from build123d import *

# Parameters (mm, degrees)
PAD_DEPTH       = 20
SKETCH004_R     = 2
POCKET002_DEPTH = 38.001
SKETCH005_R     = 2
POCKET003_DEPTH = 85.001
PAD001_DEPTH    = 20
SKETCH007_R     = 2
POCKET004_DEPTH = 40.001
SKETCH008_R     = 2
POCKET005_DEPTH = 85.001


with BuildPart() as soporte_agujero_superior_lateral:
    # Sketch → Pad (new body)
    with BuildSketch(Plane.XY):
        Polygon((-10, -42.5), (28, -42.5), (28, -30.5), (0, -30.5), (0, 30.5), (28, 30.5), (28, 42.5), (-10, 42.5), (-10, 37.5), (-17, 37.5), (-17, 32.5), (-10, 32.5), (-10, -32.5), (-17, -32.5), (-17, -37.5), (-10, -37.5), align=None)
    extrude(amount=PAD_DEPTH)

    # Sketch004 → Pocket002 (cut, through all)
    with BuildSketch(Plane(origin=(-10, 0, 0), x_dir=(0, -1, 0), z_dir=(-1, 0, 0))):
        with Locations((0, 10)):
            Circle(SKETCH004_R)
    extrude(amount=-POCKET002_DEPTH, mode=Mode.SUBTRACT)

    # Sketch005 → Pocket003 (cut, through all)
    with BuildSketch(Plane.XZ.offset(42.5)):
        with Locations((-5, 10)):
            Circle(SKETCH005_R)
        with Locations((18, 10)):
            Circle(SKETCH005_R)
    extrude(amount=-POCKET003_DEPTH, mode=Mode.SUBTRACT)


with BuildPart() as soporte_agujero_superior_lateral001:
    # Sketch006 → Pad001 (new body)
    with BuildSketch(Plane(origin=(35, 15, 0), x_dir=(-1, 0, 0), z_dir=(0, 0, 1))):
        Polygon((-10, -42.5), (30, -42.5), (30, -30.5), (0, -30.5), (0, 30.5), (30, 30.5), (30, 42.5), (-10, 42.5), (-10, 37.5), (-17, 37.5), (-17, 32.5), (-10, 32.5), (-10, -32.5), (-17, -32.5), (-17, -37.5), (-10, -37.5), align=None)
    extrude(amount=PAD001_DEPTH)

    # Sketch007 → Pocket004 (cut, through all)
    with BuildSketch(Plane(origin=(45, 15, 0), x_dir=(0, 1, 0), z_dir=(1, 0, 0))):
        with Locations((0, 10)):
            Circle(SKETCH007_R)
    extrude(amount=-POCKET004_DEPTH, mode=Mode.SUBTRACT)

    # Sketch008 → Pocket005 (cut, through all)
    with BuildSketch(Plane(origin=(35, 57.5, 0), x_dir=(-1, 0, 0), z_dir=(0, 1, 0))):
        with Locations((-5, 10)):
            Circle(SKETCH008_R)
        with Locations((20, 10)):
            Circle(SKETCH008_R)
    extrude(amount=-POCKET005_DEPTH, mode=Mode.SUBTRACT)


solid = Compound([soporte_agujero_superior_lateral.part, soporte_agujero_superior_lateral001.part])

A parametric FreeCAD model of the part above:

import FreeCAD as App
import Part
import Sketcher


def add_polygon(sketch, points):
    """Adds a closed chain of lines whose ends are joined by coincident constraints."""
    first, n = sketch.GeometryCount, len(points)
    for a, b in zip(points, points[1:] + points[:1]):
        sketch.addGeometry(Part.LineSegment(App.Vector(*a, 0), App.Vector(*b, 0)), False)
    for i in range(n):
        sketch.addConstraint(Sketcher.Constraint("Coincident", first + i, 2, first + (i + 1) % n, 1))

doc = App.newDocument("Part")
params = doc.addObject("Spreadsheet::Sheet", "Params")
for row, (alias, value) in enumerate([
    ("sketch1_width", "38 mm"),
    ("sketch1_width2", "28 mm"),
    ("sketch1_width3", "7 mm"),
    ("sketch1_height", "12 mm"),
    ("sketch1_height2", "61 mm"),
    ("pad1_length", "20 mm"),
    ("sketch2_diameter", "4 mm"),
    ("sketch3_diameter", "4 mm"),
    ("sketch4_width", "40 mm"),
    ("sketch4_width2", "30 mm"),
    ("sketch4_width3", "7 mm"),
    ("sketch4_height", "12 mm"),
    ("sketch4_height2", "61 mm"),
    ("pad2_length", "20 mm"),
    ("sketch5_diameter", "4 mm"),
    ("sketch6_diameter", "4 mm"),
], start=1):
    params.set(f"A{row}", alias)
    params.set(f"B{row}", "=" + value)
    params.setAlias(f"B{row}", alias)

body = doc.addObject("PartDesign::Body", "Body")

# Sketch on XY plane
sketch1 = body.newObject("Sketcher::SketchObject", "Sketch")
sketch1.AttachmentSupport = (doc.getObject("XY_Plane"), [""])
sketch1.MapMode = "FlatFace"
add_polygon(sketch1, [(-10, -42.5), (28, -42.5), (28, -30.5), (0, -30.5), (0, 30.5), (28, 30.5), (28, 42.5), (-10, 42.5), (-10, 37.5), (-17, 37.5), (-17, 32.5), (-10, 32.5), (-10, -32.5), (-17, -32.5), (-17, -37.5), (-10, -37.5)])  # lines 0-15
sketch1.addConstraint([
    Sketcher.Constraint("Horizontal", 0),
    Sketcher.Constraint("Vertical", 1),
    Sketcher.Constraint("Horizontal", 2),
    Sketcher.Constraint("Vertical", 3),
    Sketcher.Constraint("Horizontal", 4),
    Sketcher.Constraint("Vertical", 5),
    Sketcher.Constraint("Horizontal", 6),
    Sketcher.Constraint("Vertical", 7),
    Sketcher.Constraint("Horizontal", 8),
    Sketcher.Constraint("Vertical", 9),
    Sketcher.Constraint("Horizontal", 10),
    Sketcher.Constraint("Vertical", 11),
    Sketcher.Constraint("Horizontal", 12),
    Sketcher.Constraint("Vertical", 13),
    Sketcher.Constraint("Horizontal", 14),
    Sketcher.Constraint("Vertical", 15),
    Sketcher.Constraint("Symmetric", 2, 2, 3, 2, -1, 1),
    Sketcher.Constraint("Symmetric", 0, 2, 5, 2, -1),
    Sketcher.Constraint("Symmetric", 9, 2, 12, 2, -1),
    Sketcher.Constraint("Symmetric", 7, 2, 14, 2, -1),
    Sketcher.Constraint("Vertical", 7, 2, 10, 2),
    Sketcher.Constraint("Equal", 7, 9),
    Sketcher.Constraint("DistanceX", 0, 1, 0, 2, 38.0),
    Sketcher.Constraint("DistanceX", 2, 2, 2, 1, 28.0),
    Sketcher.Constraint("DistanceX", 8, 2, 8, 1, 7.0),
    Sketcher.Constraint("DistanceY", 1, 1, 1, 2, 12.0),
    Sketcher.Constraint("DistanceY", 3, 1, 3, 2, 61.0),
    Sketcher.Constraint("DistanceY", 7, 2, 7, 1, 5.0),
])
sketch1.setExpression("Constraints[38]", "Params.sketch1_width")
sketch1.setExpression("Constraints[39]", "Params.sketch1_width2")
sketch1.setExpression("Constraints[40]", "Params.sketch1_width3")
sketch1.setExpression("Constraints[41]", "Params.sketch1_height")
sketch1.setExpression("Constraints[42]", "Params.sketch1_height2")
pad1 = body.newObject("PartDesign::Pad", "Pad")
pad1.Profile = sketch1
pad1.setExpression("Length", "Params.pad1_length")

# Sketch on YZ plane
sketch2 = body.newObject("Sketcher::SketchObject", "Sketch001")
sketch2.AttachmentSupport = (doc.getObject("YZ_Plane"), [""])
sketch2.MapMode = "FlatFace"
sketch2.AttachmentOffset = App.Placement(App.Vector(0, 0, -10), App.Rotation())
sketch2.addGeometry(Part.Circle(App.Vector(0, 10, 0), App.Vector(0, 0, 1), 2), False)
sketch2.addConstraint([
    Sketcher.Constraint("PointOnObject", 0, 3, -2),
    Sketcher.Constraint("Diameter", 0, 4.0),
    Sketcher.Constraint("DistanceY", -1, 1, 0, 3, 10.0),
])
sketch2.setExpression("Constraints[1]", "Params.sketch2_diameter")
pocket1 = body.newObject("PartDesign::Pocket", "Pocket")
pocket1.Profile = sketch2
pocket1.Type = "ThroughAll"
pocket1.Reversed = True

# Sketch on XZ plane
sketch3 = body.newObject("Sketcher::SketchObject", "Sketch002")
sketch3.AttachmentSupport = (doc.getObject("XZ_Plane"), [""])
sketch3.MapMode = "FlatFace"
sketch3.AttachmentOffset = App.Placement(App.Vector(0, 0, 42.5), App.Rotation())
sketch3.addGeometry([
    Part.Circle(App.Vector(-5, 10, 0), App.Vector(0, 0, 1), 2),
    Part.Circle(App.Vector(18, 10, 0), App.Vector(0, 0, 1), 2),
], False)
sketch3.addConstraint([
    Sketcher.Constraint("Equal", 0, 1),
    Sketcher.Constraint("Horizontal", 0, 3, 1, 3),
    Sketcher.Constraint("Diameter", 0, 4.0),
    Sketcher.Constraint("DistanceX", 0, 3, -1, 1, 5.0),
    Sketcher.Constraint("DistanceY", -1, 1, 0, 3, 10.0),
    Sketcher.Constraint("DistanceX", -1, 1, 1, 3, 18.0),
])
sketch3.setExpression("Constraints[2]", "Params.sketch3_diameter")
pocket2 = body.newObject("PartDesign::Pocket", "Pocket001")
pocket2.Profile = sketch3
pocket2.Type = "ThroughAll"
body2 = doc.addObject("PartDesign::Body", "Body001")

# Sketch on XY plane
sketch4 = body2.newObject("Sketcher::SketchObject", "Sketch003")
sketch4.AttachmentSupport = (doc.getObject("XY_Plane001"), [""])
sketch4.MapMode = "FlatFace"
add_polygon(sketch4, [(45, 57.5), (5, 57.5), (5, 45.5), (35, 45.5), (35, -15.5), (5, -15.5), (5, -27.5), (45, -27.5), (45, -22.5), (52, -22.5), (52, -17.5), (45, -17.5), (45, 47.5), (52, 47.5), (52, 52.5), (45, 52.5)])  # lines 0-15
sketch4.addConstraint([
    Sketcher.Constraint("Horizontal", 0),
    Sketcher.Constraint("Vertical", 1),
    Sketcher.Constraint("Horizontal", 2),
    Sketcher.Constraint("Vertical", 3),
    Sketcher.Constraint("Horizontal", 4),
    Sketcher.Constraint("Vertical", 5),
    Sketcher.Constraint("Horizontal", 6),
    Sketcher.Constraint("Vertical", 7),
    Sketcher.Constraint("Horizontal", 8),
    Sketcher.Constraint("Vertical", 9),
    Sketcher.Constraint("Horizontal", 10),
    Sketcher.Constraint("Vertical", 11),
    Sketcher.Constraint("Horizontal", 12),
    Sketcher.Constraint("Vertical", 13),
    Sketcher.Constraint("Horizontal", 14),
    Sketcher.Constraint("Vertical", 15),
    Sketcher.Constraint("Vertical", 1, 2, 4, 2),
    Sketcher.Constraint("Vertical", 7, 2, 10, 2),
    Sketcher.Constraint("Vertical", 9, 2, 12, 2),
    Sketcher.Constraint("Vertical", 11, 2, 14, 2),
    Sketcher.Constraint("Equal", 1, 5),
    Sketcher.Constraint("Equal", 7, 9),
    Sketcher.Constraint("Equal", 9, 13),
    Sketcher.Constraint("Equal", 13, 15),
    Sketcher.Constraint("DistanceX", 0, 2, 0, 1, 40.0),
    Sketcher.Constraint("DistanceX", 2, 1, 2, 2, 30.0),
    Sketcher.Constraint("DistanceX", 8, 1, 8, 2, 7.0),
    Sketcher.Constraint("DistanceY", 1, 2, 1, 1, 12.0),
    Sketcher.Constraint("DistanceY", 3, 2, 3, 1, 61.0),
    Sketcher.Constraint("DistanceY", 7, 1, 7, 2, 5.0),
    Sketcher.Constraint("DistanceX", -1, 1, 0, 2, 5.0),
    Sketcher.Constraint("DistanceY", -1, 1, 0, 2, 57.5),
])
sketch4.setExpression("Constraints[40]", "Params.sketch4_width")
sketch4.setExpression("Constraints[41]", "Params.sketch4_width2")
sketch4.setExpression("Constraints[42]", "Params.sketch4_width3")
sketch4.setExpression("Constraints[43]", "Params.sketch4_height")
sketch4.setExpression("Constraints[44]", "Params.sketch4_height2")
pad2 = body2.newObject("PartDesign::Pad", "Pad001")
pad2.Profile = sketch4
pad2.setExpression("Length", "Params.pad2_length")

# Sketch on YZ plane
sketch5 = body2.newObject("Sketcher::SketchObject", "Sketch004")
sketch5.AttachmentSupport = (doc.getObject("YZ_Plane001"), [""])
sketch5.MapMode = "FlatFace"
sketch5.AttachmentOffset = App.Placement(App.Vector(0, 0, 45), App.Rotation())
sketch5.addGeometry(Part.Circle(App.Vector(15, 10, 0), App.Vector(0, 0, 1), 2), False)
sketch5.addConstraint([
    Sketcher.Constraint("Diameter", 0, 4.0),
    Sketcher.Constraint("DistanceX", -1, 1, 0, 3, 15.0),
    Sketcher.Constraint("DistanceY", -1, 1, 0, 3, 10.0),
])
sketch5.setExpression("Constraints[0]", "Params.sketch5_diameter")
pocket3 = body2.newObject("PartDesign::Pocket", "Pocket002")
pocket3.Profile = sketch5
pocket3.Type = "ThroughAll"

# Sketch on XZ plane
sketch6 = body2.newObject("Sketcher::SketchObject", "Sketch005")
sketch6.AttachmentSupport = (doc.getObject("XZ_Plane001"), [""])
sketch6.MapMode = "FlatFace"
sketch6.AttachmentOffset = App.Placement(App.Vector(0, 0, -57.5), App.Rotation())
sketch6.addGeometry([
    Part.Circle(App.Vector(40, 10, 0), App.Vector(0, 0, 1), 2),
    Part.Circle(App.Vector(15, 10, 0), App.Vector(0, 0, 1), 2),
], False)
sketch6.addConstraint([
    Sketcher.Constraint("Equal", 0, 1),
    Sketcher.Constraint("Horizontal", 0, 3, 1, 3),
    Sketcher.Constraint("Diameter", 0, 4.0),
    Sketcher.Constraint("DistanceX", -1, 1, 0, 3, 40.0),
    Sketcher.Constraint("DistanceY", -1, 1, 0, 3, 10.0),
    Sketcher.Constraint("DistanceX", -1, 1, 1, 3, 15.0),
])
sketch6.setExpression("Constraints[2]", "Params.sketch6_diameter")
pocket4 = body2.newObject("PartDesign::Pocket", "Pocket003")
pocket4.Profile = sketch6
pocket4.Type = "ThroughAll"
pocket4.Reversed = True

doc.recompute()
